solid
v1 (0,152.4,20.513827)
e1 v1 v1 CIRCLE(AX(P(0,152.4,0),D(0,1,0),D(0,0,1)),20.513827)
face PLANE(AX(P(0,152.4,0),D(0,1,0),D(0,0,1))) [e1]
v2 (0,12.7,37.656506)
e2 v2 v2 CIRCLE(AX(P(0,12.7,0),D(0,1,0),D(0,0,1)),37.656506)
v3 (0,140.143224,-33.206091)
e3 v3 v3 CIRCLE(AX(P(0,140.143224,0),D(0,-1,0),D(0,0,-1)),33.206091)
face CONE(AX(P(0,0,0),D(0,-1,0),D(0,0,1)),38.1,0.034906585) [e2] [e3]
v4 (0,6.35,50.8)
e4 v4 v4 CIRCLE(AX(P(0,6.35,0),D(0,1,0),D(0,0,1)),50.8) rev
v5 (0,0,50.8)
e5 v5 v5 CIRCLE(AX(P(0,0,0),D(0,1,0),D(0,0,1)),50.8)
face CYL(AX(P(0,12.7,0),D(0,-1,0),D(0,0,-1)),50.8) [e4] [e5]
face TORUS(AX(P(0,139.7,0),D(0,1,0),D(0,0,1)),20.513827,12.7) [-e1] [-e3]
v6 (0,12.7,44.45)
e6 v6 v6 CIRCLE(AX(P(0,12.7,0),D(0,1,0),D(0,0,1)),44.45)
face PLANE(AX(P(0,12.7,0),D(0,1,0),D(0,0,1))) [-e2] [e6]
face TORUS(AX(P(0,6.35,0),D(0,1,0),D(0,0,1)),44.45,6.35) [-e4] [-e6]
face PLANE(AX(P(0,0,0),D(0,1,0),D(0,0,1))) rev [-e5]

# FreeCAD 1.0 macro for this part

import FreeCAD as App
import Part
import Sketcher
from FreeCAD import Vector
Q = App.Units.Quantity


def edges_at(feature, points):
    """Names of the edges that pass closest to the given points."""
    edges = feature.Shape.Edges
    near = lambda p: min(range(len(edges)), key=lambda i: edges[i].distToShape(Part.Vertex(*p))[0])
    return sorted({f"Edge{near(p) + 1}" for p in points})

doc = App.newDocument("Part")
body = doc.addObject("PartDesign::Body", "Body")

# Sketch on XZ plane
sketch1 = body.newObject("Sketcher::SketchObject", "Sketch")
sketch1.AttachmentSupport = (doc.getObject("XZ_Plane"), [""])
sketch1.MapMode = "FlatFace"
sketch1.addGeometry(Part.Circle(Vector(0, 0, 0), Vector(0, 0, 1), 38), False)
sketch1.addConstraint(Sketcher.Constraint("Coincident", 0, 3, -1, 1))
sketch1.addConstraint(Sketcher.Constraint("Diameter", 0, Q("3 in")))
pad1 = body.newObject("PartDesign::Pad", "Pad")
pad1.Profile = sketch1
pad1.Length = Q("6 in")
pad1.Reversed = True
pad1.TaperAngle = -2
doc.recompute()

fillet = body.newObject("PartDesign::Fillet", "Fillet")
fillet.Base = (pad1, edges_at(pad1, [(-32.778, 152.4, 0)]))
fillet.Radius = Q("0.5 in")

# Sketch on XZ plane
sketch2 = body.newObject("Sketcher::SketchObject", "Sketch001")
sketch2.AttachmentSupport = (doc.getObject("XZ_Plane"), [""])
sketch2.MapMode = "FlatFace"
sketch2.addGeometry(Part.Circle(Vector(0, 0, 0), Vector(0, 0, 1), 51), False)
sketch2.addConstraint(Sketcher.Constraint("Coincident", 0, 3, -1, 1))
sketch2.addConstraint(Sketcher.Constraint("Diameter", 0, Q("4 in")))
pad2 = body.newObject("PartDesign::Pad", "Pad001")
pad2.Profile = sketch2
pad2.Length = Q("0.5 in")
pad2.Reversed = True
doc.recompute()

fillet2 = body.newObject("PartDesign::Fillet", "Fillet001")
fillet2.Base = (pad2, edges_at(pad2, [(-50.8, 12.7, 0)]))
fillet2.Radius = Q("0.25 in")

doc.recompute()
